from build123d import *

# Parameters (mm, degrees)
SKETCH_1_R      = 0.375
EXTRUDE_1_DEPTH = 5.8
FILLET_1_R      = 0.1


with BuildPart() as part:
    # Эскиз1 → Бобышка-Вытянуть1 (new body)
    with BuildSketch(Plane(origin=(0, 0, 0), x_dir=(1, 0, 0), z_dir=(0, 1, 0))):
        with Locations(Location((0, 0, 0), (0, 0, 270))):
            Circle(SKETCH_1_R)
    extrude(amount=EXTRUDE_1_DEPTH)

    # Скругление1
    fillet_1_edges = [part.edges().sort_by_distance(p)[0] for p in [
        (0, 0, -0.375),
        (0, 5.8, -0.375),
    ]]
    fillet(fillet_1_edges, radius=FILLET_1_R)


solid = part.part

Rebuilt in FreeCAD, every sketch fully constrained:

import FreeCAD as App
import Part
import Sketcher
from FreeCAD import Vector
Q = App.Units.Quantity


def edges_at(feature, points):
    """Names of the edges that pass closest to the given points."""
    edges = feature.Shape.Edges
    near = lambda p: min(range(len(edges)), key=lambda i: edges[i].distToShape(Part.Vertex(*p))[0])
    return sorted({f"Edge{near(p) + 1}" for p in points})

doc = App.newDocument("Part")
params = doc.addObject("Spreadsheet::Sheet", "Params")
for row, (alias, value) in enumerate([
    ("sketch1_diameter", "0.75 mm"),
    ("pad1_length", "5.8 mm"),
    ("fillet_radius", "0.1 mm"),
], start=1):
    params.set(f"A{row}", alias)
    params.set(f"B{row}", "=" + value)
    params.setAlias(f"B{row}", alias)

body = doc.addObject("PartDesign::Body", "Body")

# Sketch on XZ plane
sketch1 = body.newObject("Sketcher::SketchObject", "Sketch")
sketch1.AttachmentSupport = (doc.getObject("XZ_Plane"), [""])
sketch1.MapMode = "FlatFace"
sketch1.addGeometry(Part.Circle(Vector(0, 0, 0), Vector(0, 0, 1), 0.375), False)
sketch1.addConstraint([
    Sketcher.Constraint("Coincident", 0, 3, -1, 1),
    Sketcher.Constraint("Diameter", 0, Q("0.75 mm")),
])
sketch1.setExpression("Constraints[1]", "Params.sketch1_diameter")
pad1 = body.newObject("PartDesign::Pad", "Pad")
pad1.Profile = sketch1
pad1.setExpression("Length", "Params.pad1_length")
pad1.Reversed = True
doc.recompute()

fillet = body.newObject("PartDesign::Fillet", "Fillet")
fillet.Base = (pad1, edges_at(pad1, [(0, 0, -0.375), (0, 5.8, -0.375)]))
fillet.setExpression("Radius", "Params.fillet_radius")

doc.recompute()
